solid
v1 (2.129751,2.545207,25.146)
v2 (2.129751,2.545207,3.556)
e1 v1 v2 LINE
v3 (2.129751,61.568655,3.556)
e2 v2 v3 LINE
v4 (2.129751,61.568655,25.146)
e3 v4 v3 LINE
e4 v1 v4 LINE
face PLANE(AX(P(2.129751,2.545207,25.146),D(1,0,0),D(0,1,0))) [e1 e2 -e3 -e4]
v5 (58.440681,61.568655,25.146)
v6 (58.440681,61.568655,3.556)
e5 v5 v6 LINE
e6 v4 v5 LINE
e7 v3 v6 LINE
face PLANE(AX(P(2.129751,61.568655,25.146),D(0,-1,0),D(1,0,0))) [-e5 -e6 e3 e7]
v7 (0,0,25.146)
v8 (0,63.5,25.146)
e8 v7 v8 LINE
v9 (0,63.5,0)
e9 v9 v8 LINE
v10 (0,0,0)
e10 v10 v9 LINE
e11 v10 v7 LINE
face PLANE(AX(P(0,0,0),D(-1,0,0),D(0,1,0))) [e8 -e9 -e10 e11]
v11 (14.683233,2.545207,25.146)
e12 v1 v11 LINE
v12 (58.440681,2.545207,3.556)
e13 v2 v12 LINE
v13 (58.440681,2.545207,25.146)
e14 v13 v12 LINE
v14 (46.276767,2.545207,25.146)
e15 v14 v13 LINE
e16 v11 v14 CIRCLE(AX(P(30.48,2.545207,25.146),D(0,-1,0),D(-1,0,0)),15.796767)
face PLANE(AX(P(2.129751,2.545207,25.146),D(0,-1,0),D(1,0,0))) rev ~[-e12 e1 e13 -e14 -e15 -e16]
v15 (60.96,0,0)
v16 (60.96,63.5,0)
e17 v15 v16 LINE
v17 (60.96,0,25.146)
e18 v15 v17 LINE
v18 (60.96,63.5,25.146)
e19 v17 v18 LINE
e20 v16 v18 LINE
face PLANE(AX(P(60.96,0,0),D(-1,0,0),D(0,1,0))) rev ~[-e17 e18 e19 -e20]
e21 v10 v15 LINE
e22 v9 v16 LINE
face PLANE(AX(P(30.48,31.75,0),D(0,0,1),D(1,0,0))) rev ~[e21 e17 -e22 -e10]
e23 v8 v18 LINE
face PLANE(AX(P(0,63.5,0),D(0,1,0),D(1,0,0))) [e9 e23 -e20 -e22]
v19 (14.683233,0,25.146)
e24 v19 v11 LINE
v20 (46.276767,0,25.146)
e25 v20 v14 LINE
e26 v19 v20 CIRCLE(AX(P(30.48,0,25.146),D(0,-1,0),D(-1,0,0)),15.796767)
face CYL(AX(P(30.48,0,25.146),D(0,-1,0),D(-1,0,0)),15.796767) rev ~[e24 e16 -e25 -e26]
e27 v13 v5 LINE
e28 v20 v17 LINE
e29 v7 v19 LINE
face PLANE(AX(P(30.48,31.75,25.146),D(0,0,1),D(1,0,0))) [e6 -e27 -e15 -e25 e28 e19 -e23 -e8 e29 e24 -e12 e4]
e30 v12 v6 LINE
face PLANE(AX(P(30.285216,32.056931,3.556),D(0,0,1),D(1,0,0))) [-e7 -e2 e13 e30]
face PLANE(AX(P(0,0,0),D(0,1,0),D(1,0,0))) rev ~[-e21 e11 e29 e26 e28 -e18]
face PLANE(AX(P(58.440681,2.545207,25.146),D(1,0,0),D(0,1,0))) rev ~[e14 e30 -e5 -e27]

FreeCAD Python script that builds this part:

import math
import FreeCAD as App
import Part
import Sketcher

V = App.Vector
Q = App.Units.Quantity


def add_polygon(sketch, points):
    """Adds a closed chain of lines whose ends are joined by coincident constraints."""
    first, n = sketch.GeometryCount, len(points)
    for a, b in zip(points, points[1:] + points[:1]):
        sketch.addGeometry(Part.LineSegment(App.Vector(*a, 0), App.Vector(*b, 0)), False)
    for i in range(n):
        sketch.addConstraint(Sketcher.Constraint("Coincident", first + i, 2, first + (i + 1) % n, 1))

doc = App.newDocument("Part")
params = doc.addObject("Spreadsheet::Sheet", "Params")
for row, (alias, value) in enumerate([
    ("sketch1_width", "2.4 in"),
    ("sketch1_height", "2.5 in"),
    ("pad1_length", "0.99 in"),
    ("pocket1_length", "0.85 in"),
    ("pocket2_length", "1 in"),
], start=1):
    params.set(f"A{row}", alias)
    params.set(f"B{row}", "=" + value)
    params.setAlias(f"B{row}", alias)

body = doc.addObject("PartDesign::Body", "Body")

# Sketch on XY plane
sketch1 = body.newObject("Sketcher::SketchObject", "Sketch")
sketch1.AttachmentSupport = (doc.getObject("XY_Plane"), [""])
sketch1.MapMode = "FlatFace"
add_polygon(sketch1, [(0, 64), (0, 0), (61, 0), (61, 64)])  # lines 0-3
sketch1.addConstraint([
    Sketcher.Constraint("Vertical", 0),
    Sketcher.Constraint("Horizontal", 1),
    Sketcher.Constraint("Vertical", 2),
    Sketcher.Constraint("Horizontal", 3),
    Sketcher.Constraint("Coincident", 0, 2, -1, 1),
    Sketcher.Constraint("DistanceX", 1, 1, 1, 2, Q("2.4 in")),
    Sketcher.Constraint("DistanceY", 0, 2, 0, 1, Q("2.5 in")),
])
sketch1.setExpression("Constraints[9]", "Params.sketch1_width")
sketch1.setExpression("Constraints[10]", "Params.sketch1_height")
pad1 = body.newObject("PartDesign::Pad", "Pad")
pad1.Profile = sketch1
pad1.setExpression("Length", "Params.pad1_length")

# Sketch on XY plane
sketch2 = body.newObject("Sketcher::SketchObject", "Sketch001")
sketch2.AttachmentSupport = (doc.getObject("XY_Plane"), [""])
sketch2.MapMode = "FlatFace"
sketch2.AttachmentOffset = App.Placement(V(0, 0, 0.99 * 25.4), App.Rotation())
add_polygon(sketch2, [(2, 62), (2, 3), (58, 3), (58, 62)])  # lines 0-3
sketch2.addConstraint([
    Sketcher.Constraint("Vertical", 0),
    Sketcher.Constraint("Horizontal", 1),
    Sketcher.Constraint("Vertical", 2),
    Sketcher.Constraint("Horizontal", 3),
    Sketcher.Constraint("DistanceX", 1, 1, 1, 2, 56.310931),
    Sketcher.Constraint("DistanceY", 0, 2, 0, 1, 59.023448),
    Sketcher.Constraint("DistanceX", -1, 1, 0, 2, 2.129751),
    Sketcher.Constraint("DistanceY", -1, 1, 0, 2, 2.545207),
])
pocket1 = body.newObject("PartDesign::Pocket", "Pocket")
pocket1.Profile = sketch2
pocket1.setExpression("Length", "Params.pocket1_length")

# Sketch on XZ plane
sketch3 = body.newObject("Sketcher::SketchObject", "Sketch002")
sketch3.AttachmentSupport = (doc.getObject("XZ_Plane"), [""])
sketch3.MapMode = "FlatFace"
sketch3.addGeometry([
    Part.ArcOfCircle(Part.Circle(V(30, 25, 0), V(0, 0, 1), 16), math.radians(180), math.radians(360)),
    Part.LineSegment(V(46, 25, 0), V(15, 25, 0)),
], False)
sketch3.addConstraint([
    Sketcher.Constraint("Coincident", 0, 1, 1, 2),
    Sketcher.Constraint("Coincident", 1, 1, 0, 2),
    Sketcher.Constraint("Horizontal", 1),
    Sketcher.Constraint("DistanceX", -1, 1, 0, 3, Q("1.2 in")),
    Sketcher.Constraint("DistanceY", -1, 1, 0, 3, Q("0.99 in")),
    Sketcher.Constraint("DistanceY", -1, 1, 0, 1, Q("0.99 in")),
    Sketcher.Constraint("Radius", 0, 15.796767),
])
pocket2 = body.newObject("PartDesign::Pocket", "Pocket001")
pocket2.Profile = sketch3
pocket2.setExpression("Length", "Params.pocket2_length")

doc.recompute()
